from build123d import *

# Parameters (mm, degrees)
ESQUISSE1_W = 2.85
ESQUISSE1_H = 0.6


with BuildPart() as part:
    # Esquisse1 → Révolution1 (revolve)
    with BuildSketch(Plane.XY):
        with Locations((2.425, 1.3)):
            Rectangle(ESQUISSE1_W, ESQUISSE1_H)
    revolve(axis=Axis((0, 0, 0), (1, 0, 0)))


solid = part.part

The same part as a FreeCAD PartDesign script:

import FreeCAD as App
import Part
import Sketcher

V = App.Vector
Q = App.Units.Quantity

doc = App.newDocument("Part")
body = doc.addObject("PartDesign::Body", "Body")

# Sketch on XY plane
sketch1 = doc.addObject("Sketcher::SketchObject", "Sketch")
body.addObject(sketch1)
sketch1.AttachmentSupport = (doc.XY_Plane, [""])
sketch1.MapMode = "FlatFace"
sketch1.addGeometry([
    Part.LineSegment(V(1, 1.6, 0), V(1, 1, 0)),
    Part.LineSegment(V(1, 1, 0), V(3.9, 1, 0)),
    Part.LineSegment(V(3.9, 1, 0), V(3.9, 1.6, 0)),
    Part.LineSegment(V(3.9, 1.6, 0), V(1, 1.6, 0)),
], False)
sketch1.addConstraint([
    Sketcher.Constraint("Coincident", 0, 2, 1, 1),
    Sketcher.Constraint("Coincident", 1, 2, 2, 1),
    Sketcher.Constraint("Coincident", 2, 2, 3, 1),
    Sketcher.Constraint("Coincident", 3, 2, 0, 1),
    Sketcher.Constraint("Vertical", 0),
    Sketcher.Constraint("Horizontal", 1),
    Sketcher.Constraint("Vertical", 2),
    Sketcher.Constraint("Horizontal", 3),
    Sketcher.Constraint("DistanceY", 0, 2, 0, 1, Q("0.6 mm")),
    Sketcher.Constraint("DistanceX", -1, 1, 0, 2, Q("1 mm")),
    Sketcher.Constraint("DistanceY", -1, 1, 0, 2, Q("1 mm")),
    Sketcher.Constraint("DistanceX", 1, 1, 1, 2, Q("2.85 mm")),
])
revolution = doc.addObject("PartDesign::Revolution", "Revolution")
body.addObject(revolution)
revolution.Profile = sketch1
revolution.ReferenceAxis = (sketch1, ["H_Axis"])
revolution.Angle = 360

doc.recompute()
